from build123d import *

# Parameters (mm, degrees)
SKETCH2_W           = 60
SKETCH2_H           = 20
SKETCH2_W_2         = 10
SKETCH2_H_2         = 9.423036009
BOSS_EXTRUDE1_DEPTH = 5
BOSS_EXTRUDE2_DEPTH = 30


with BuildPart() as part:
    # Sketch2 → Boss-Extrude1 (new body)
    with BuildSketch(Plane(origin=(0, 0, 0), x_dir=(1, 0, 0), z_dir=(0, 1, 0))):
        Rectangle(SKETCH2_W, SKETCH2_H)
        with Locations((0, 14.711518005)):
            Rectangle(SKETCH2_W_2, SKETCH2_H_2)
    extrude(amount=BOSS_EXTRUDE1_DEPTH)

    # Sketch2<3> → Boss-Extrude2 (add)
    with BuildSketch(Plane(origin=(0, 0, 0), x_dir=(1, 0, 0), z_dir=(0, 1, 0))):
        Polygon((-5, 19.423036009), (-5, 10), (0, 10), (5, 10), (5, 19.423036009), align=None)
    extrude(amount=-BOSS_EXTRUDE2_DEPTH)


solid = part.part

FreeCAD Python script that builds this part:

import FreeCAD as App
import Part
import Sketcher
Q = App.Units.Quantity


def add_polygon(sketch, points):
    """Adds a closed chain of lines whose ends are joined by coincident constraints."""
    first, n = sketch.GeometryCount, len(points)
    for a, b in zip(points, points[1:] + points[:1]):
        sketch.addGeometry(Part.LineSegment(App.Vector(*a, 0), App.Vector(*b, 0)), False)
    for i in range(n):
        sketch.addConstraint(Sketcher.Constraint("Coincident", first + i, 2, first + (i + 1) % n, 1))

doc = App.newDocument("Part")
body = doc.addObject("PartDesign::Body", "Body")

# Sketch on XZ plane
sketch1 = body.newObject("Sketcher::SketchObject", "Sketch")
sketch1.AttachmentSupport = (doc.getObject("XZ_Plane"), [""])
sketch1.MapMode = "FlatFace"
add_polygon(sketch1, [(-30, -10), (-30, 10), (30, 10), (30, -10), (5, -10), (5, -19.423036), (-5, -19.423036), (-5, -10)])  # lines 0-7
sketch1.addConstraint([
    Sketcher.Constraint("Vertical", 0),
    Sketcher.Constraint("Horizontal", 1),
    Sketcher.Constraint("Vertical", 2),
    Sketcher.Constraint("Horizontal", 3),
    Sketcher.Constraint("Vertical", 4),
    Sketcher.Constraint("Horizontal", 5),
    Sketcher.Constraint("Vertical", 6),
    Sketcher.Constraint("Horizontal", 7),
    Sketcher.Constraint("Symmetric", 0, 2, 2, 2, -1, 1),
    Sketcher.Constraint("Symmetric", 3, 2, 6, 2, -2),
    Sketcher.Constraint("DistanceX", 1, 1, 1, 2, Q("60 mm")),
    Sketcher.Constraint("DistanceX", 3, 2, 3, 1, Q("25 mm")),
    Sketcher.Constraint("DistanceY", 0, 1, 0, 2, Q("20 mm")),
    Sketcher.Constraint("DistanceY", 4, 2, 4, 1, Q("9.423036 mm")),
])
pad1 = body.newObject("PartDesign::Pad", "Pad")
pad1.Profile = sketch1
pad1.Length = 5
pad1.Reversed = True

# Sketch on XZ plane
sketch2 = body.newObject("Sketcher::SketchObject", "Sketch001")
sketch2.AttachmentSupport = (doc.getObject("XZ_Plane"), [""])
sketch2.MapMode = "FlatFace"
add_polygon(sketch2, [(-5, -19.423036), (-5, -10), (5, -10), (5, -19.423036)])  # lines 0-3
sketch2.addConstraint([
    Sketcher.Constraint("Vertical", 0),
    Sketcher.Constraint("Horizontal", 1),
    Sketcher.Constraint("Vertical", 2),
    Sketcher.Constraint("Horizontal", 3),
    Sketcher.Constraint("DistanceX", 1, 1, 1, 2, Q("10 mm")),
    Sketcher.Constraint("DistanceX", 0, 2, -1, 1, Q("5 mm")),
    Sketcher.Constraint("DistanceY", 0, 2, -1, 1, Q("10 mm")),
    Sketcher.Constraint("DistanceY", 0, 1, 0, 2, Q("9.423036 mm")),
])
pad2 = body.newObject("PartDesign::Pad", "Pad001")
pad2.Profile = sketch2
pad2.Length = 30

doc.recompute()
